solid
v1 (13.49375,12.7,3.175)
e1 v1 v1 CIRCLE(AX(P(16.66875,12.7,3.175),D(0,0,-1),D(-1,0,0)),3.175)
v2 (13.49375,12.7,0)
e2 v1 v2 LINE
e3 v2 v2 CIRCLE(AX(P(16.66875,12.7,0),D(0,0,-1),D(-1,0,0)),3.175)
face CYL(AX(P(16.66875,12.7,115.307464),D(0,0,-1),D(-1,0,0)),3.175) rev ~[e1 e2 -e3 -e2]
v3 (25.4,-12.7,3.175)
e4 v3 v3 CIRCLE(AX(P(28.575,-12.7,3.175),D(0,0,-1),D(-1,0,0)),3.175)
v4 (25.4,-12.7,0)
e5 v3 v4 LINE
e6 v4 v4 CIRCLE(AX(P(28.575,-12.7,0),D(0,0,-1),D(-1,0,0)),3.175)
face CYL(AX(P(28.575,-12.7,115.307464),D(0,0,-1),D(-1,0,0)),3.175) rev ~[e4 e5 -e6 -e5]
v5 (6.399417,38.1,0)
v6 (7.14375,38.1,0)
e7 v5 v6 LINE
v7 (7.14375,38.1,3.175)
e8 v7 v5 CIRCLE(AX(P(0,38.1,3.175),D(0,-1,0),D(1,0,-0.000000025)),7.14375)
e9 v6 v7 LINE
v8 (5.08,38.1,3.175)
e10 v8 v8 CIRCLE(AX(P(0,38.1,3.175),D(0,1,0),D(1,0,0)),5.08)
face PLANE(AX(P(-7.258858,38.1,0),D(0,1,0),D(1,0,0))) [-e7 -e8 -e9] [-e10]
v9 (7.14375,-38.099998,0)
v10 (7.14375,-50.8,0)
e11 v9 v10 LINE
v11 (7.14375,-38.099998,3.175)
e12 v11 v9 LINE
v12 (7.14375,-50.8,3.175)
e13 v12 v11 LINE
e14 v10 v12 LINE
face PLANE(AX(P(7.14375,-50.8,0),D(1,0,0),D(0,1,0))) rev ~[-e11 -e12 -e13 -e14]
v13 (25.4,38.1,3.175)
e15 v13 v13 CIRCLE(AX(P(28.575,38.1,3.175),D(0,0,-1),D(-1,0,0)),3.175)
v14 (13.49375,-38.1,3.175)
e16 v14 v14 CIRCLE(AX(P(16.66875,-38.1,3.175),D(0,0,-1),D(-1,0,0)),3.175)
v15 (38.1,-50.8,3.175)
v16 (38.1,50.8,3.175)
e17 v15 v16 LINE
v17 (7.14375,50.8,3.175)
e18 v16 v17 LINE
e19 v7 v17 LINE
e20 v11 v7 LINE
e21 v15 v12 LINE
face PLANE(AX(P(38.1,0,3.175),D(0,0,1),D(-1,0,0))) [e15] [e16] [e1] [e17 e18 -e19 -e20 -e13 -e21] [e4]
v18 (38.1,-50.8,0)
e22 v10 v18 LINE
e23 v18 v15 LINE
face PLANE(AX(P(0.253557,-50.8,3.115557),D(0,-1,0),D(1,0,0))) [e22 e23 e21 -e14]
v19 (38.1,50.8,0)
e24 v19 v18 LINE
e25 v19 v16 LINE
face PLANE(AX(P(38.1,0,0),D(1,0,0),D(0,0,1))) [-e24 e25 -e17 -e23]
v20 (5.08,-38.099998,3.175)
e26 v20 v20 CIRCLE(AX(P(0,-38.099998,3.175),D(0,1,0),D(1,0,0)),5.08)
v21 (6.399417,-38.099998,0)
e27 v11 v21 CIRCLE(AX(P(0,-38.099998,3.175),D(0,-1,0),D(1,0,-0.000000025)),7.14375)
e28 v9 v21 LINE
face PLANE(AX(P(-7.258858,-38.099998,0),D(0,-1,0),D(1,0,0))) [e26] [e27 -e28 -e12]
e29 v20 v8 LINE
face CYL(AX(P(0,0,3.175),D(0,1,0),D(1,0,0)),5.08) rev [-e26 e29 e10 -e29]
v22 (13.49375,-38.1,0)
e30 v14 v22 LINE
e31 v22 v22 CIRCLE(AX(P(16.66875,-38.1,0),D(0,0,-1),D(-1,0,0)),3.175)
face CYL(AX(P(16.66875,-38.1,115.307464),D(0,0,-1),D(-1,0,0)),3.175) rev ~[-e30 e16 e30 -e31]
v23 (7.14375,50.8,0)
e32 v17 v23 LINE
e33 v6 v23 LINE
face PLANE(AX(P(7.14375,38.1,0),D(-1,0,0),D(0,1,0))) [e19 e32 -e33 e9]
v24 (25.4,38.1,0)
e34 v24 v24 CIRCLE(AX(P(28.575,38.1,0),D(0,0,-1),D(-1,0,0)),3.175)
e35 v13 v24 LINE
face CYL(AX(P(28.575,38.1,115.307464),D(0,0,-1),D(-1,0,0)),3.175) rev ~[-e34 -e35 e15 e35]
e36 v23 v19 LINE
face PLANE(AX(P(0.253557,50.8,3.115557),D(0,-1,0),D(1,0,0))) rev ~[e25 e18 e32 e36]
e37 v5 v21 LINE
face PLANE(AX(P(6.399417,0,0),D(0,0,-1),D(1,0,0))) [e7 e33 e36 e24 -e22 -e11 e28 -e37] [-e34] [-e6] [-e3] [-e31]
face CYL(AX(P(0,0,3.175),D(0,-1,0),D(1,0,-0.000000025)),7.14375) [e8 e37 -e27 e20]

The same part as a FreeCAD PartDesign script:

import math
import FreeCAD as App
import Part
import Sketcher
from FreeCAD import Vector
Q = App.Units.Quantity

doc = App.newDocument("Part")
params = doc.addObject("Spreadsheet::Sheet", "Params")
for row, (alias, value) in enumerate([
    ("sketch1_diameter", "0.4 in"),
    ("sketch1_radius", "0.28125 in"),
    ("sketch1_height", "0.125 in"),
    ("pad1_length", "4 in"),
    ("sketch2_height", "0.5 in"),
    ("pocket1_length", "1 in"),
    ("sketch3_diameter", "0.25 in"),
    ("hole_diameter", "0.25 in"),
], start=1):
    params.set(f"A{row}", alias)
    params.set(f"B{row}", "=" + value)
    params.setAlias(f"B{row}", alias)

body = doc.addObject("PartDesign::Body", "Body")

sketch1 = body.newObject("Sketcher::SketchObject", "Sketch")
sketch1.AttachmentSupport = (doc.getObject("XZ_Plane"), [""])
sketch1.MapMode = "FlatFace"
sketch1.addGeometry(Part.ArcOfCircle(Part.Circle(Vector(0, 3.2, 0), Vector(0, 0, 1), 7.1), math.radians(0), math.radians(334)), False)
sketch1.addGeometry(Part.LineSegment(Vector(6.4, 0, 0), Vector(38.1, 0, 0)), False)
sketch1.addGeometry(Part.LineSegment(Vector(38.1, 0, 0), Vector(38.1, 3.2, 0)), False)
sketch1.addGeometry(Part.LineSegment(Vector(38.1, 3.2, 0), Vector(7.1, 3.2, 0)), False)
sketch1.addGeometry(Part.Circle(Vector(0, 3.2, 0), Vector(0, 0, 1), 5.1), False)
sketch1.addConstraint(Sketcher.Constraint("Coincident", 0, 2, 1, 1))
sketch1.addConstraint(Sketcher.Constraint("Coincident", 1, 2, 2, 1))
sketch1.addConstraint(Sketcher.Constraint("Coincident", 2, 2, 3, 1))
sketch1.addConstraint(Sketcher.Constraint("Coincident", 3, 2, 0, 1))
sketch1.addConstraint(Sketcher.Constraint("Horizontal", 1))
sketch1.addConstraint(Sketcher.Constraint("Vertical", 2))
sketch1.addConstraint(Sketcher.Constraint("Horizontal", 3))
sketch1.addConstraint(Sketcher.Constraint("Coincident", 4, 3, 0, 3))
sketch1.addConstraint(Sketcher.Constraint("PointOnObject", 0, 3, -2))
sketch1.addConstraint(Sketcher.Constraint("PointOnObject", 0, 2, -1))
sketch1.addConstraint(Sketcher.Constraint("Horizontal", 4, 3, 2, 2))
sketch1.addConstraint(Sketcher.Constraint("Diameter", 4, Q("0.4 in")))
sketch1.addConstraint(Sketcher.Constraint("Radius", 0, Q("0.28125 in")))
sketch1.addConstraint(Sketcher.Constraint("DistanceX", -1, 1, 1, 2, Q("1.5 in")))
sketch1.addConstraint(Sketcher.Constraint("DistanceY", 2, 1, 2, 2, Q("0.125 in")))
sketch1.setExpression("Constraints[11]", "Params.sketch1_diameter")
sketch1.setExpression("Constraints[12]", "Params.sketch1_radius")
sketch1.setExpression("Constraints[14]", "Params.sketch1_height")
pad1 = body.newObject("PartDesign::Pad", "Pad")
pad1.Profile = sketch1
pad1.setExpression("Length", "Params.pad1_length")
pad1.Midplane = True

sketch2 = body.newObject("Sketcher::SketchObject", "Sketch001")
sketch2.AttachmentSupport = (doc.getObject("XY_Plane"), [""])
sketch2.MapMode = "FlatFace"
sketch2.addGeometry(Part.LineSegment(Vector(-7, 51, 0), Vector(-7, 38, 0)), False)
sketch2.addGeometry(Part.LineSegment(Vector(-7, 38, 0), Vector(7, 38, 0)), False)
sketch2.addGeometry(Part.LineSegment(Vector(7, 38, 0), Vector(7, 51, 0)), False)
sketch2.addGeometry(Part.LineSegment(Vector(7, 51, 0), Vector(-7, 51, 0)), False)
sketch2.addGeometry(Part.LineSegment(Vector(-7, -38, 0), Vector(-7, -51, 0)), False)
sketch2.addGeometry(Part.LineSegment(Vector(-7, -51, 0), Vector(7, -51, 0)), False)
sketch2.addGeometry(Part.LineSegment(Vector(7, -51, 0), Vector(7, -38, 0)), False)
sketch2.addGeometry(Part.LineSegment(Vector(7, -38, 0), Vector(-7, -38, 0)), False)
sketch2.addConstraint(Sketcher.Constraint("Coincident", 0, 2, 1, 1))
sketch2.addConstraint(Sketcher.Constraint("Coincident", 1, 2, 2, 1))
sketch2.addConstraint(Sketcher.Constraint("Coincident", 2, 2, 3, 1))
sketch2.addConstraint(Sketcher.Constraint("Coincident", 3, 2, 0, 1))
sketch2.addConstraint(Sketcher.Constraint("Coincident", 4, 2, 5, 1))
sketch2.addConstraint(Sketcher.Constraint("Coincident", 5, 2, 6, 1))
sketch2.addConstraint(Sketcher.Constraint("Coincident", 6, 2, 7, 1))
sketch2.addConstraint(Sketcher.Constraint("Coincident", 7, 2, 4, 1))
sketch2.addConstraint(Sketcher.Constraint("Vertical", 0))
sketch2.addConstraint(Sketcher.Constraint("Horizontal", 1))
sketch2.addConstraint(Sketcher.Constraint("Vertical", 2))
sketch2.addConstraint(Sketcher.Constraint("Horizontal", 3))
sketch2.addConstraint(Sketcher.Constraint("Vertical", 4))
sketch2.addConstraint(Sketcher.Constraint("Horizontal", 5))
sketch2.addConstraint(Sketcher.Constraint("Vertical", 6))
sketch2.addConstraint(Sketcher.Constraint("Horizontal", 7))
sketch2.addConstraint(Sketcher.Constraint("Symmetric", 3, 2, 4, 2, -1))
sketch2.addConstraint(Sketcher.Constraint("Symmetric", 1, 2, 6, 2, -1))
sketch2.addConstraint(Sketcher.Constraint("DistanceY", 0, 2, 0, 1, Q("0.5 in")))
sketch2.addConstraint(Sketcher.Constraint("DistanceY", -1, 1, 2, 2, Q("2 in")))
sketch2.addConstraint(Sketcher.Constraint("DistanceX", -1, 1, 1, 2, Q("0.28125 in")))
sketch2.addConstraint(Sketcher.Constraint("DistanceX", 1, 1, 1, 2, Q("14.402608 mm")))
sketch2.setExpression("Constraints[18]", "Params.sketch2_height")
pocket1 = body.newObject("PartDesign::Pocket", "Pocket")
pocket1.Profile = sketch2
pocket1.setExpression("Length", "Params.pocket1_length")
pocket1.Midplane = True

sketch3 = body.newObject("Sketcher::SketchObject", "Sketch002")
sketch3.AttachmentSupport = (doc.getObject("XY_Plane"), [""])
sketch3.MapMode = "FlatFace"
sketch3.AttachmentOffset = App.Placement(Vector(0, 0, 0.125 * 25.4), App.Rotation())
sketch3.addGeometry(Part.Circle(Vector(28.6, 38.1, 0), Vector(0, 0, 1), 3.2), False)
sketch3.addGeometry(Part.Circle(Vector(16.7, 12.7, 0), Vector(0, 0, 1), 3.2), False)
sketch3.addGeometry(Part.Circle(Vector(28.6, -12.7, 0), Vector(0, 0, 1), 3.2), False)
sketch3.addGeometry(Part.Circle(Vector(16.7, -38.1, 0), Vector(0, 0, 1), 3.2), False)
sketch3.addConstraint(Sketcher.Constraint("Equal", 0, 1))
sketch3.addConstraint(Sketcher.Constraint("Equal", 1, 2))
sketch3.addConstraint(Sketcher.Constraint("Equal", 2, 3))
sketch3.addConstraint(Sketcher.Constraint("Vertical", 0, 3, 2, 3))
sketch3.addConstraint(Sketcher.Constraint("Vertical", 1, 3, 3, 3))
sketch3.addConstraint(Sketcher.Constraint("Diameter", 0, Q("0.25 in")))
sketch3.addConstraint(Sketcher.Constraint("DistanceY", 1, 3, 0, 3, Q("1 in")))
sketch3.addConstraint(Sketcher.Constraint("DistanceY", 2, 3, 1, 3, Q("1 in")))
sketch3.addConstraint(Sketcher.Constraint("DistanceY", 3, 3, 2, 3, Q("1 in")))
sketch3.addConstraint(Sketcher.Constraint("DistanceY", -1, 1, 0, 3, Q("1.5 in")))
sketch3.addConstraint(Sketcher.Constraint("DistanceX", -1, 1, 0, 3, Q("1.125 in")))
sketch3.addConstraint(Sketcher.Constraint("DistanceX", -1, 1, 1, 3, Q("0.65625 in")))
sketch3.setExpression("Constraints[5]", "Params.sketch3_diameter")
doc.recompute()
hole = body.newObject("PartDesign::Hole", "Hole")
hole.Profile = sketch3
hole.ThreadType = "None"
hole.setExpression("Diameter", "Params.hole_diameter")
hole.DepthType = "ThroughAll"

doc.recompute()
